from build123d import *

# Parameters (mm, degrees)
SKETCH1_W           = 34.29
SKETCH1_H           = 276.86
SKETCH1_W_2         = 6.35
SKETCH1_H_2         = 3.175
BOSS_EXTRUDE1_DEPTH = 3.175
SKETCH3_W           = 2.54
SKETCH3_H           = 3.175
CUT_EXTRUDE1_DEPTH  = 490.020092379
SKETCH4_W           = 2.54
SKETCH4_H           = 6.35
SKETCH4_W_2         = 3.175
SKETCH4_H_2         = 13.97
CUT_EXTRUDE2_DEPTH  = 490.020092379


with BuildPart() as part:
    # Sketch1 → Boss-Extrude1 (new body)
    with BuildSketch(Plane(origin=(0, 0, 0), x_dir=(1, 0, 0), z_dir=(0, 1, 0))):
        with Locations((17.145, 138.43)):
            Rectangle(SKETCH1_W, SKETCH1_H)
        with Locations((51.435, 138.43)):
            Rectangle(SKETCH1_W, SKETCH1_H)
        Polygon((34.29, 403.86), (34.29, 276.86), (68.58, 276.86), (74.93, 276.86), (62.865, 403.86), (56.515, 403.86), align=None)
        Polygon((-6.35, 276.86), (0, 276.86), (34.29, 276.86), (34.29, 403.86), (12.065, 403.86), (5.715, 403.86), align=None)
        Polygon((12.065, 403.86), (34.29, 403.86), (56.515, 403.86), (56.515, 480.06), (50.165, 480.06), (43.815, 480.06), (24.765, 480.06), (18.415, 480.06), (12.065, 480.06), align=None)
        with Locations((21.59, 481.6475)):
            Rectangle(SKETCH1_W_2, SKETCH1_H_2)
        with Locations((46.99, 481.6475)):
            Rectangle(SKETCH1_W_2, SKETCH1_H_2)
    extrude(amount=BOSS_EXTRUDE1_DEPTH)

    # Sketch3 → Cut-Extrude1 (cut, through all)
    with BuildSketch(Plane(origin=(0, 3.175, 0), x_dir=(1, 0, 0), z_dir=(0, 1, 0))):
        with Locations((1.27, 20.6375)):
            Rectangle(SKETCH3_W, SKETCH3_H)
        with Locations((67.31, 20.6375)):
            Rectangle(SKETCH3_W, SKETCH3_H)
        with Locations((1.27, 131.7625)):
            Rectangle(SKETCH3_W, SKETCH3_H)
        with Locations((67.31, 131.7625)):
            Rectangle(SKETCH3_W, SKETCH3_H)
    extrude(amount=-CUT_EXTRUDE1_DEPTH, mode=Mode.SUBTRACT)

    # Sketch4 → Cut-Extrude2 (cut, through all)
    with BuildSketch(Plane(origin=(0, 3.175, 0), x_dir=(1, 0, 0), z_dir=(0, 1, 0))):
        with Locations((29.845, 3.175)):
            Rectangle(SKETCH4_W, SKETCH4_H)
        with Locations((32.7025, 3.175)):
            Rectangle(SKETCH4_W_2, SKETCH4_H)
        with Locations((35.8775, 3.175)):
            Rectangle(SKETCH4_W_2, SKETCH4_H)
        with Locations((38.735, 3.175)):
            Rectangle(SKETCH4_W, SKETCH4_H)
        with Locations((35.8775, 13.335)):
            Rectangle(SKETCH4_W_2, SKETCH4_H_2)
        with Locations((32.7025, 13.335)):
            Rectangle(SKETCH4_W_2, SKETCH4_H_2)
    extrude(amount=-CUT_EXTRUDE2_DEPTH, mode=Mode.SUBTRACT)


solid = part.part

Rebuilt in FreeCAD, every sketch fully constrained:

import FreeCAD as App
import Part
import Sketcher
from FreeCAD import Vector
Q = App.Units.Quantity

doc = App.newDocument("Part")
params = doc.addObject("Spreadsheet::Sheet", "Params")
for row, (alias, value) in enumerate([
    ("sketch1_height", "3 in"),
    ("sketch1_width", "2.7 in"),
    ("sketch1_height2", "10.9 in"),
    ("sketch1_height3", "0.125 in"),
    ("pad1_length", "0.125 in"),
    ("sketch2_width", "0.1 in"),
    ("sketch2_height", "0.125 in"),
    ("sketch3_width", "0.1 in"),
    ("sketch3_width2", "0.45 in"),
    ("sketch3_height", "0.55 in"),
], start=1):
    params.set(f"A{row}", alias)
    params.set(f"B{row}", "=" + value)
    params.setAlias(f"B{row}", alias)

body = doc.addObject("PartDesign::Body", "Body")

sketch1 = doc.addObject("Sketcher::SketchObject", "Sketch")
body.addObject(sketch1)
sketch1.AttachmentSupport = (doc.XZ_Plane, [""])
sketch1.MapMode = "FlatFace"
sketch1.addGeometry(Part.LineSegment(Vector(0, -276.86, 0), Vector(0, 0, 0)), False)
sketch1.addGeometry(Part.LineSegment(Vector(0, 0, 0), Vector(68.58, 0, 0)), False)
sketch1.addGeometry(Part.LineSegment(Vector(68.58, 0, 0), Vector(68.58, -276.86, 0)), False)
sketch1.addGeometry(Part.LineSegment(Vector(68.58, -276.86, 0), Vector(74.93, -276.86, 0)), False)
sketch1.addGeometry(Part.LineSegment(Vector(74.93, -276.86, 0), Vector(62.865, -403.86, 0)), False)
sketch1.addGeometry(Part.LineSegment(Vector(62.865, -403.86, 0), Vector(56.515, -403.86, 0)), False)
sketch1.addGeometry(Part.LineSegment(Vector(56.515, -403.86, 0), Vector(56.515, -480.06, 0)), False)
sketch1.addGeometry(Part.LineSegment(Vector(56.515, -480.06, 0), Vector(50.165, -480.06, 0)), False)
sketch1.addGeometry(Part.LineSegment(Vector(50.165, -480.06, 0), Vector(50.165, -483.235, 0)), False)
sketch1.addGeometry(Part.LineSegment(Vector(50.165, -483.235, 0), Vector(43.815, -483.235, 0)), False)
sketch1.addGeometry(Part.LineSegment(Vector(43.815, -483.235, 0), Vector(43.815, -480.06, 0)), False)
sketch1.addGeometry(Part.LineSegment(Vector(43.815, -480.06, 0), Vector(24.765, -480.06, 0)), False)
sketch1.addGeometry(Part.LineSegment(Vector(24.765, -480.06, 0), Vector(24.765, -483.235, 0)), False)
sketch1.addGeometry(Part.LineSegment(Vector(24.765, -483.235, 0), Vector(18.415, -483.235, 0)), False)
sketch1.addGeometry(Part.LineSegment(Vector(18.415, -483.235, 0), Vector(18.415, -480.06, 0)), False)
sketch1.addGeometry(Part.LineSegment(Vector(18.415, -480.06, 0), Vector(12.065, -480.06, 0)), False)
sketch1.addGeometry(Part.LineSegment(Vector(12.065, -480.06, 0), Vector(12.065, -403.86, 0)), False)
sketch1.addGeometry(Part.LineSegment(Vector(12.065, -403.86, 0), Vector(5.715, -403.86, 0)), False)
sketch1.addGeometry(Part.LineSegment(Vector(5.715, -403.86, 0), Vector(-6.35, -276.86, 0)), False)
sketch1.addGeometry(Part.LineSegment(Vector(-6.35, -276.86, 0), Vector(0, -276.86, 0)), False)
sketch1.addConstraint(Sketcher.Constraint("Coincident", 0, 2, 1, 1))
sketch1.addConstraint(Sketcher.Constraint("Coincident", 1, 2, 2, 1))
sketch1.addConstraint(Sketcher.Constraint("Coincident", 2, 2, 3, 1))
sketch1.addConstraint(Sketcher.Constraint("Coincident", 3, 2, 4, 1))
sketch1.addConstraint(Sketcher.Constraint("Coincident", 4, 2, 5, 1))
sketch1.addConstraint(Sketcher.Constraint("Coincident", 5, 2, 6, 1))
sketch1.addConstraint(Sketcher.Constraint("Coincident", 6, 2, 7, 1))
sketch1.addConstraint(Sketcher.Constraint("Coincident", 7, 2, 8, 1))
sketch1.addConstraint(Sketcher.Constraint("Coincident", 8, 2, 9, 1))
sketch1.addConstraint(Sketcher.Constraint("Coincident", 9, 2, 10, 1))
sketch1.addConstraint(Sketcher.Constraint("Coincident", 10, 2, 11, 1))
sketch1.addConstraint(Sketcher.Constraint("Coincident", 11, 2, 12, 1))
sketch1.addConstraint(Sketcher.Constraint("Coincident", 12, 2, 13, 1))
sketch1.addConstraint(Sketcher.Constraint("Coincident", 13, 2, 14, 1))
sketch1.addConstraint(Sketcher.Constraint("Coincident", 14, 2, 15, 1))
sketch1.addConstraint(Sketcher.Constraint("Coincident", 15, 2, 16, 1))
sketch1.addConstraint(Sketcher.Constraint("Coincident", 16, 2, 17, 1))
sketch1.addConstraint(Sketcher.Constraint("Coincident", 17, 2, 18, 1))
sketch1.addConstraint(Sketcher.Constraint("Coincident", 18, 2, 19, 1))
sketch1.addConstraint(Sketcher.Constraint("Coincident", 19, 2, 0, 1))
sketch1.addConstraint(Sketcher.Constraint("Vertical", 0))
sketch1.addConstraint(Sketcher.Constraint("Horizontal", 1))
sketch1.addConstraint(Sketcher.Constraint("Vertical", 2))
sketch1.addConstraint(Sketcher.Constraint("Horizontal", 3))
sketch1.addConstraint(Sketcher.Constraint("Horizontal", 5))
sketch1.addConstraint(Sketcher.Constraint("Vertical", 6))
sketch1.addConstraint(Sketcher.Constraint("Horizontal", 7))
sketch1.addConstraint(Sketcher.Constraint("Vertical", 8))
sketch1.addConstraint(Sketcher.Constraint("Horizontal", 9))
sketch1.addConstraint(Sketcher.Constraint("Vertical", 10))
sketch1.addConstraint(Sketcher.Constraint("Horizontal", 11))
sketch1.addConstraint(Sketcher.Constraint("Vertical", 12))
sketch1.addConstraint(Sketcher.Constraint("Horizontal", 13))
sketch1.addConstraint(Sketcher.Constraint("Vertical", 14))
sketch1.addConstraint(Sketcher.Constraint("Horizontal", 15))
sketch1.addConstraint(Sketcher.Constraint("Vertical", 16))
sketch1.addConstraint(Sketcher.Constraint("Horizontal", 17))
sketch1.addConstraint(Sketcher.Constraint("Horizontal", 19))
sketch1.addConstraint(Sketcher.Constraint("Coincident", 0, 2, -1, 1))
sketch1.addConstraint(Sketcher.Constraint("Horizontal", 7, 2, 10, 2))
sketch1.addConstraint(Sketcher.Constraint("Horizontal", 9, 2, 12, 2))
sketch1.addConstraint(Sketcher.Constraint("Horizontal", 11, 2, 14, 2))
sketch1.addConstraint(Sketcher.Constraint("Horizontal", 5, 2, 16, 2))
sketch1.addConstraint(Sketcher.Constraint("Horizontal", 3, 2, 18, 2))
sketch1.addConstraint(Sketcher.Constraint("Equal", 3, 5))
sketch1.addConstraint(Sketcher.Constraint("Equal", 5, 7))
sketch1.addConstraint(Sketcher.Constraint("Equal", 7, 9))
sketch1.addConstraint(Sketcher.Constraint("Equal", 9, 13))
sketch1.addConstraint(Sketcher.Constraint("Equal", 13, 15))
sketch1.addConstraint(Sketcher.Constraint("Equal", 15, 17))
sketch1.addConstraint(Sketcher.Constraint("Equal", 17, 19))
sketch1.addConstraint(Sketcher.Constraint("Equal", 4, 18))
sketch1.addConstraint(Sketcher.Constraint("DistanceY", 6, 2, 6, 1, Q("3 in")))
sketch1.addConstraint(Sketcher.Constraint("DistanceX", 1, 1, 1, 2, Q("2.7 in")))
sketch1.addConstraint(Sketcher.Constraint("DistanceY", 0, 1, 0, 2, Q("10.9 in")))
sketch1.addConstraint(Sketcher.Constraint("DistanceY", 4, 2, 2, 2, Q("5 in")))
sketch1.addConstraint(Sketcher.Constraint("DistanceX", 11, 2, 7, 2, Q("1 in")))
sketch1.addConstraint(Sketcher.Constraint("DistanceX", 16, 2, 4, 2, Q("2 in")))
sketch1.addConstraint(Sketcher.Constraint("DistanceY", 8, 2, 8, 1, Q("0.125 in")))
sketch1.setExpression("Constraints[52]", "Params.sketch1_height")
sketch1.setExpression("Constraints[53]", "Params.sketch1_width")
sketch1.setExpression("Constraints[54]", "Params.sketch1_height2")
sketch1.setExpression("Constraints[58]", "Params.sketch1_height3")
pad1 = doc.addObject("PartDesign::Pad", "Pad")
body.addObject(pad1)
pad1.Profile = sketch1
pad1.setExpression("Length", "Params.pad1_length")
pad1.Reversed = True

sketch2 = doc.addObject("Sketcher::SketchObject", "Sketch001")
body.addObject(sketch2)
sketch2.AttachmentSupport = (doc.XZ_Plane, [""])
sketch2.MapMode = "FlatFace"
sketch2.AttachmentOffset = App.Placement(Vector(0, 0, -0.125 * 25.4), App.Rotation())
sketch2.addGeometry(Part.LineSegment(Vector(0, -22.225, 0), Vector(0, -19.05, 0)), False)
sketch2.addGeometry(Part.LineSegment(Vector(0, -19.05, 0), Vector(2.54, -19.05, 0)), False)
sketch2.addGeometry(Part.LineSegment(Vector(2.54, -19.05, 0), Vector(2.54, -22.225, 0)), False)
sketch2.addGeometry(Part.LineSegment(Vector(2.54, -22.225, 0), Vector(0, -22.225, 0)), False)
sketch2.addGeometry(Part.LineSegment(Vector(66.04, -22.225, 0), Vector(66.04, -19.05, 0)), False)
sketch2.addGeometry(Part.LineSegment(Vector(66.04, -19.05, 0), Vector(68.58, -19.05, 0)), False)
sketch2.addGeometry(Part.LineSegment(Vector(68.58, -19.05, 0), Vector(68.58, -22.225, 0)), False)
sketch2.addGeometry(Part.LineSegment(Vector(68.58, -22.225, 0), Vector(66.04, -22.225, 0)), False)
sketch2.addGeometry(Part.LineSegment(Vector(0, -133.35, 0), Vector(0, -130.175, 0)), False)
sketch2.addGeometry(Part.LineSegment(Vector(0, -130.175, 0), Vector(2.54, -130.175, 0)), False)
sketch2.addGeometry(Part.LineSegment(Vector(2.54, -130.175, 0), Vector(2.54, -133.35, 0)), False)
sketch2.addGeometry(Part.LineSegment(Vector(2.54, -133.35, 0), Vector(0, -133.35, 0)), False)
sketch2.addGeometry(Part.LineSegment(Vector(66.04, -133.35, 0), Vector(66.04, -130.175, 0)), False)
sketch2.addGeometry(Part.LineSegment(Vector(66.04, -130.175, 0), Vector(68.58, -130.175, 0)), False)
sketch2.addGeometry(Part.LineSegment(Vector(68.58, -130.175, 0), Vector(68.58, -133.35, 0)), False)
sketch2.addGeometry(Part.LineSegment(Vector(68.58, -133.35, 0), Vector(66.04, -133.35, 0)), False)
sketch2.addConstraint(Sketcher.Constraint("Coincident", 0, 2, 1, 1))
sketch2.addConstraint(Sketcher.Constraint("Coincident", 1, 2, 2, 1))
sketch2.addConstraint(Sketcher.Constraint("Coincident", 2, 2, 3, 1))
sketch2.addConstraint(Sketcher.Constraint("Coincident", 3, 2, 0, 1))
sketch2.addConstraint(Sketcher.Constraint("Coincident", 4, 2, 5, 1))
sketch2.addConstraint(Sketcher.Constraint("Coincident", 5, 2, 6, 1))
sketch2.addConstraint(Sketcher.Constraint("Coincident", 6, 2, 7, 1))
sketch2.addConstraint(Sketcher.Constraint("Coincident", 7, 2, 4, 1))
sketch2.addConstraint(Sketcher.Constraint("Coincident", 8, 2, 9, 1))
sketch2.addConstraint(Sketcher.Constraint("Coincident", 9, 2, 10, 1))
sketch2.addConstraint(Sketcher.Constraint("Coincident", 10, 2, 11, 1))
sketch2.addConstraint(Sketcher.Constraint("Coincident", 11, 2, 8, 1))
sketch2.addConstraint(Sketcher.Constraint("Coincident", 12, 2, 13, 1))
sketch2.addConstraint(Sketcher.Constraint("Coincident", 13, 2, 14, 1))
sketch2.addConstraint(Sketcher.Constraint("Coincident", 14, 2, 15, 1))
sketch2.addConstraint(Sketcher.Constraint("Coincident", 15, 2, 12, 1))
sketch2.addConstraint(Sketcher.Constraint("Vertical", 0))
sketch2.addConstraint(Sketcher.Constraint("Horizontal", 1))
sketch2.addConstraint(Sketcher.Constraint("Vertical", 2))
sketch2.addConstraint(Sketcher.Constraint("Horizontal", 3))
sketch2.addConstraint(Sketcher.Constraint("Vertical", 4))
sketch2.addConstraint(Sketcher.Constraint("Horizontal", 5))
sketch2.addConstraint(Sketcher.Constraint("Vertical", 6))
sketch2.addConstraint(Sketcher.Constraint("Horizontal", 7))
sketch2.addConstraint(Sketcher.Constraint("Vertical", 8))
sketch2.addConstraint(Sketcher.Constraint("Horizontal", 9))
sketch2.addConstraint(Sketcher.Constraint("Vertical", 10))
sketch2.addConstraint(Sketcher.Constraint("Horizontal", 11))
sketch2.addConstraint(Sketcher.Constraint("Vertical", 12))
sketch2.addConstraint(Sketcher.Constraint("Horizontal", 13))
sketch2.addConstraint(Sketcher.Constraint("Vertical", 14))
sketch2.addConstraint(Sketcher.Constraint("Horizontal", 15))
sketch2.addConstraint(Sketcher.Constraint("PointOnObject", 0, 2, -2))
sketch2.addConstraint(Sketcher.Constraint("PointOnObject", 8, 2, -2))
sketch2.addConstraint(Sketcher.Constraint("Horizontal", 1, 2, 4, 2))
sketch2.addConstraint(Sketcher.Constraint("Horizontal", 3, 2, 6, 2))
sketch2.addConstraint(Sketcher.Constraint("Horizontal", 9, 2, 12, 2))
sketch2.addConstraint(Sketcher.Constraint("Horizontal", 11, 2, 14, 2))
sketch2.addConstraint(Sketcher.Constraint("Vertical", 2, 2, 9, 2))
sketch2.addConstraint(Sketcher.Constraint("Vertical", 7, 2, 12, 2))
sketch2.addConstraint(Sketcher.Constraint("Vertical", 6, 2, 13, 2))
sketch2.addConstraint(Sketcher.Constraint("Equal", 3, 5))
sketch2.addConstraint(Sketcher.Constraint("Equal", 6, 8))
sketch2.addConstraint(Sketcher.Constraint("DistanceX", 1, 1, 1, 2, Q("0.1 in")))
sketch2.addConstraint(Sketcher.Constraint("DistanceX", -1, 1, 4, 2, Q("2.6 in")))
sketch2.addConstraint(Sketcher.Constraint("DistanceY", 10, 2, 1, 2, Q("4.5 in")))
sketch2.addConstraint(Sketcher.Constraint("DistanceY", 0, 1, 0, 2, Q("0.125 in")))
sketch2.addConstraint(Sketcher.Constraint("DistanceY", 0, 2, -1, 1, Q("0.75 in")))
sketch2.setExpression("Constraints[43]", "Params.sketch2_width")
sketch2.setExpression("Constraints[46]", "Params.sketch2_height")
pocket1 = doc.addObject("PartDesign::Pocket", "Pocket")
body.addObject(pocket1)
pocket1.Profile = sketch2
pocket1.Type = "ThroughAll"
pocket1.Reversed = True

sketch3 = doc.addObject("Sketcher::SketchObject", "Sketch002")
body.addObject(sketch3)
sketch3.AttachmentSupport = (doc.XZ_Plane, [""])
sketch3.MapMode = "FlatFace"
sketch3.AttachmentOffset = App.Placement(Vector(0, 0, -0.125 * 25.4), App.Rotation())
sketch3.addGeometry(Part.LineSegment(Vector(28.575, -6.35, 0), Vector(28.575, 0, 0)), False)
sketch3.addGeometry(Part.LineSegment(Vector(28.575, 0, 0), Vector(40.005, 0, 0)), False)
sketch3.addGeometry(Part.LineSegment(Vector(40.005, 0, 0), Vector(40.005, -6.35, 0)), False)
sketch3.addGeometry(Part.LineSegment(Vector(40.005, -6.35, 0), Vector(37.465, -6.35, 0)), False)
sketch3.addGeometry(Part.LineSegment(Vector(37.465, -6.35, 0), Vector(37.465, -20.32, 0)), False)
sketch3.addGeometry(Part.LineSegment(Vector(37.465, -20.32, 0), Vector(31.115, -20.32, 0)), False)
sketch3.addGeometry(Part.LineSegment(Vector(31.115, -20.32, 0), Vector(31.115, -6.35, 0)), False)
sketch3.addGeometry(Part.LineSegment(Vector(31.115, -6.35, 0), Vector(28.575, -6.35, 0)), False)
sketch3.addConstraint(Sketcher.Constraint("Coincident", 0, 2, 1, 1))
sketch3.addConstraint(Sketcher.Constraint("Coincident", 1, 2, 2, 1))
sketch3.addConstraint(Sketcher.Constraint("Coincident", 2, 2, 3, 1))
sketch3.addConstraint(Sketcher.Constraint("Coincident", 3, 2, 4, 1))
sketch3.addConstraint(Sketcher.Constraint("Coincident", 4, 2, 5, 1))
sketch3.addConstraint(Sketcher.Constraint("Coincident", 5, 2, 6, 1))
sketch3.addConstraint(Sketcher.Constraint("Coincident", 6, 2, 7, 1))
sketch3.addConstraint(Sketcher.Constraint("Coincident", 7, 2, 0, 1))
sketch3.addConstraint(Sketcher.Constraint("Vertical", 0))
sketch3.addConstraint(Sketcher.Constraint("Horizontal", 1))
sketch3.addConstraint(Sketcher.Constraint("Vertical", 2))
sketch3.addConstraint(Sketcher.Constraint("Horizontal", 3))
sketch3.addConstraint(Sketcher.Constraint("Vertical", 4))
sketch3.addConstraint(Sketcher.Constraint("Horizontal", 5))
sketch3.addConstraint(Sketcher.Constraint("Vertical", 6))
sketch3.addConstraint(Sketcher.Constraint("Horizontal", 7))
sketch3.addConstraint(Sketcher.Constraint("PointOnObject", 0, 2, -1))
sketch3.addConstraint(Sketcher.Constraint("Horizontal", 3, 2, 6, 2))
sketch3.addConstraint(Sketcher.Constraint("Equal", 3, 7))
sketch3.addConstraint(Sketcher.Constraint("Equal", 5, 0))
sketch3.addConstraint(Sketcher.Constraint("DistanceX", 3, 2, 3, 1, Q("0.1 in")))
sketch3.addConstraint(Sketcher.Constraint("DistanceX", 1, 1, 1, 2, Q("0.45 in")))
sketch3.addConstraint(Sketcher.Constraint("DistanceY", 4, 2, 4, 1, Q("0.55 in")))
sketch3.addConstraint(Sketcher.Constraint("DistanceX", -1, 1, 0, 2, Q("1.125 in")))
sketch3.setExpression("Constraints[20]", "Params.sketch3_width")
sketch3.setExpression("Constraints[21]", "Params.sketch3_width2")
sketch3.setExpression("Constraints[22]", "Params.sketch3_height")
pocket2 = doc.addObject("PartDesign::Pocket", "Pocket001")
body.addObject(pocket2)
pocket2.Profile = sketch3
pocket2.Type = "ThroughAll"
pocket2.Reversed = True

doc.recompute()
